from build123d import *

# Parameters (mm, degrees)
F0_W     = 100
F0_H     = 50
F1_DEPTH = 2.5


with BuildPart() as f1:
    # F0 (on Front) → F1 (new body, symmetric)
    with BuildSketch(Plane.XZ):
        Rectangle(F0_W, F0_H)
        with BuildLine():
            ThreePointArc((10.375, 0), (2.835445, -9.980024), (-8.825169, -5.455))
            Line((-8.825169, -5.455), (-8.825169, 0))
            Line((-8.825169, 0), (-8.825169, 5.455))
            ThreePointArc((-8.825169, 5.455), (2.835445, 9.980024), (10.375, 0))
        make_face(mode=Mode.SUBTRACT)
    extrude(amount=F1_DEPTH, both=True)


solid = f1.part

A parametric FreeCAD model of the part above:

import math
import FreeCAD as App
import Part
import Sketcher
from FreeCAD import Vector
Q = App.Units.Quantity


def add_polygon(sketch, points):
    """Adds a closed chain of lines whose ends are joined by coincident constraints."""
    first, n = sketch.GeometryCount, len(points)
    for a, b in zip(points, points[1:] + points[:1]):
        sketch.addGeometry(Part.LineSegment(App.Vector(*a, 0), App.Vector(*b, 0)), False)
    for i in range(n):
        sketch.addConstraint(Sketcher.Constraint("Coincident", first + i, 2, first + (i + 1) % n, 1))

doc = App.newDocument("Part")
body = doc.addObject("PartDesign::Body", "Body")

# Sketch on XZ plane
sketch1 = doc.addObject("Sketcher::SketchObject", "Sketch")
body.addObject(sketch1)
sketch1.AttachmentSupport = (doc.XZ_Plane, [""])
sketch1.MapMode = "FlatFace"
add_polygon(sketch1, [(-50, 25), (-50, -25), (50, -25), (50, 25)])  # lines 0-3
sketch1.addGeometry(Part.ArcOfCircle(Part.Circle(Vector(0, 0, 0), Vector(0, 0, 1), 10), math.radians(0), math.radians(148)), False)  # 4
sketch1.addGeometry(Part.ArcOfCircle(Part.Circle(Vector(0, 0, 0), Vector(0, 0, 1), 10), math.radians(-148), math.radians(0)), False)  # 5
sketch1.addGeometry(Part.LineSegment(Vector(-9, -5, 0), Vector(-9, 5, 0)), False)  # 6
sketch1.addConstraint([
    Sketcher.Constraint("Tangent", 4, 1, 5, 2),
    Sketcher.Constraint("Coincident", 5, 1, 6, 1),
    Sketcher.Constraint("Coincident", 6, 2, 4, 2),
    Sketcher.Constraint("Vertical", 0),
    Sketcher.Constraint("Horizontal", 1),
    Sketcher.Constraint("Vertical", 2),
    Sketcher.Constraint("Horizontal", 3),
    Sketcher.Constraint("Vertical", 6),
    Sketcher.Constraint("Coincident", 4, 3, -1, 1),
    Sketcher.Constraint("Equal", 4, 5),
    Sketcher.Constraint("Symmetric", 0, 2, 2, 2, -1, 1),
    Sketcher.Constraint("PointOnObject", 4, 1, -1),
    Sketcher.Constraint("DistanceX", 1, 1, 1, 2, Q("100 mm")),
    Sketcher.Constraint("DistanceY", 0, 2, 0, 1, Q("50 mm")),
    Sketcher.Constraint("Radius", 4, Q("10.375 mm")),
    Sketcher.Constraint("DistanceY", 6, 1, 6, 2, Q("10.91 mm")),
])
pad1 = doc.addObject("PartDesign::Pad", "Pad")
body.addObject(pad1)
pad1.Profile = sketch1
pad1.Length = 5
pad1.Midplane = True

doc.recompute()
